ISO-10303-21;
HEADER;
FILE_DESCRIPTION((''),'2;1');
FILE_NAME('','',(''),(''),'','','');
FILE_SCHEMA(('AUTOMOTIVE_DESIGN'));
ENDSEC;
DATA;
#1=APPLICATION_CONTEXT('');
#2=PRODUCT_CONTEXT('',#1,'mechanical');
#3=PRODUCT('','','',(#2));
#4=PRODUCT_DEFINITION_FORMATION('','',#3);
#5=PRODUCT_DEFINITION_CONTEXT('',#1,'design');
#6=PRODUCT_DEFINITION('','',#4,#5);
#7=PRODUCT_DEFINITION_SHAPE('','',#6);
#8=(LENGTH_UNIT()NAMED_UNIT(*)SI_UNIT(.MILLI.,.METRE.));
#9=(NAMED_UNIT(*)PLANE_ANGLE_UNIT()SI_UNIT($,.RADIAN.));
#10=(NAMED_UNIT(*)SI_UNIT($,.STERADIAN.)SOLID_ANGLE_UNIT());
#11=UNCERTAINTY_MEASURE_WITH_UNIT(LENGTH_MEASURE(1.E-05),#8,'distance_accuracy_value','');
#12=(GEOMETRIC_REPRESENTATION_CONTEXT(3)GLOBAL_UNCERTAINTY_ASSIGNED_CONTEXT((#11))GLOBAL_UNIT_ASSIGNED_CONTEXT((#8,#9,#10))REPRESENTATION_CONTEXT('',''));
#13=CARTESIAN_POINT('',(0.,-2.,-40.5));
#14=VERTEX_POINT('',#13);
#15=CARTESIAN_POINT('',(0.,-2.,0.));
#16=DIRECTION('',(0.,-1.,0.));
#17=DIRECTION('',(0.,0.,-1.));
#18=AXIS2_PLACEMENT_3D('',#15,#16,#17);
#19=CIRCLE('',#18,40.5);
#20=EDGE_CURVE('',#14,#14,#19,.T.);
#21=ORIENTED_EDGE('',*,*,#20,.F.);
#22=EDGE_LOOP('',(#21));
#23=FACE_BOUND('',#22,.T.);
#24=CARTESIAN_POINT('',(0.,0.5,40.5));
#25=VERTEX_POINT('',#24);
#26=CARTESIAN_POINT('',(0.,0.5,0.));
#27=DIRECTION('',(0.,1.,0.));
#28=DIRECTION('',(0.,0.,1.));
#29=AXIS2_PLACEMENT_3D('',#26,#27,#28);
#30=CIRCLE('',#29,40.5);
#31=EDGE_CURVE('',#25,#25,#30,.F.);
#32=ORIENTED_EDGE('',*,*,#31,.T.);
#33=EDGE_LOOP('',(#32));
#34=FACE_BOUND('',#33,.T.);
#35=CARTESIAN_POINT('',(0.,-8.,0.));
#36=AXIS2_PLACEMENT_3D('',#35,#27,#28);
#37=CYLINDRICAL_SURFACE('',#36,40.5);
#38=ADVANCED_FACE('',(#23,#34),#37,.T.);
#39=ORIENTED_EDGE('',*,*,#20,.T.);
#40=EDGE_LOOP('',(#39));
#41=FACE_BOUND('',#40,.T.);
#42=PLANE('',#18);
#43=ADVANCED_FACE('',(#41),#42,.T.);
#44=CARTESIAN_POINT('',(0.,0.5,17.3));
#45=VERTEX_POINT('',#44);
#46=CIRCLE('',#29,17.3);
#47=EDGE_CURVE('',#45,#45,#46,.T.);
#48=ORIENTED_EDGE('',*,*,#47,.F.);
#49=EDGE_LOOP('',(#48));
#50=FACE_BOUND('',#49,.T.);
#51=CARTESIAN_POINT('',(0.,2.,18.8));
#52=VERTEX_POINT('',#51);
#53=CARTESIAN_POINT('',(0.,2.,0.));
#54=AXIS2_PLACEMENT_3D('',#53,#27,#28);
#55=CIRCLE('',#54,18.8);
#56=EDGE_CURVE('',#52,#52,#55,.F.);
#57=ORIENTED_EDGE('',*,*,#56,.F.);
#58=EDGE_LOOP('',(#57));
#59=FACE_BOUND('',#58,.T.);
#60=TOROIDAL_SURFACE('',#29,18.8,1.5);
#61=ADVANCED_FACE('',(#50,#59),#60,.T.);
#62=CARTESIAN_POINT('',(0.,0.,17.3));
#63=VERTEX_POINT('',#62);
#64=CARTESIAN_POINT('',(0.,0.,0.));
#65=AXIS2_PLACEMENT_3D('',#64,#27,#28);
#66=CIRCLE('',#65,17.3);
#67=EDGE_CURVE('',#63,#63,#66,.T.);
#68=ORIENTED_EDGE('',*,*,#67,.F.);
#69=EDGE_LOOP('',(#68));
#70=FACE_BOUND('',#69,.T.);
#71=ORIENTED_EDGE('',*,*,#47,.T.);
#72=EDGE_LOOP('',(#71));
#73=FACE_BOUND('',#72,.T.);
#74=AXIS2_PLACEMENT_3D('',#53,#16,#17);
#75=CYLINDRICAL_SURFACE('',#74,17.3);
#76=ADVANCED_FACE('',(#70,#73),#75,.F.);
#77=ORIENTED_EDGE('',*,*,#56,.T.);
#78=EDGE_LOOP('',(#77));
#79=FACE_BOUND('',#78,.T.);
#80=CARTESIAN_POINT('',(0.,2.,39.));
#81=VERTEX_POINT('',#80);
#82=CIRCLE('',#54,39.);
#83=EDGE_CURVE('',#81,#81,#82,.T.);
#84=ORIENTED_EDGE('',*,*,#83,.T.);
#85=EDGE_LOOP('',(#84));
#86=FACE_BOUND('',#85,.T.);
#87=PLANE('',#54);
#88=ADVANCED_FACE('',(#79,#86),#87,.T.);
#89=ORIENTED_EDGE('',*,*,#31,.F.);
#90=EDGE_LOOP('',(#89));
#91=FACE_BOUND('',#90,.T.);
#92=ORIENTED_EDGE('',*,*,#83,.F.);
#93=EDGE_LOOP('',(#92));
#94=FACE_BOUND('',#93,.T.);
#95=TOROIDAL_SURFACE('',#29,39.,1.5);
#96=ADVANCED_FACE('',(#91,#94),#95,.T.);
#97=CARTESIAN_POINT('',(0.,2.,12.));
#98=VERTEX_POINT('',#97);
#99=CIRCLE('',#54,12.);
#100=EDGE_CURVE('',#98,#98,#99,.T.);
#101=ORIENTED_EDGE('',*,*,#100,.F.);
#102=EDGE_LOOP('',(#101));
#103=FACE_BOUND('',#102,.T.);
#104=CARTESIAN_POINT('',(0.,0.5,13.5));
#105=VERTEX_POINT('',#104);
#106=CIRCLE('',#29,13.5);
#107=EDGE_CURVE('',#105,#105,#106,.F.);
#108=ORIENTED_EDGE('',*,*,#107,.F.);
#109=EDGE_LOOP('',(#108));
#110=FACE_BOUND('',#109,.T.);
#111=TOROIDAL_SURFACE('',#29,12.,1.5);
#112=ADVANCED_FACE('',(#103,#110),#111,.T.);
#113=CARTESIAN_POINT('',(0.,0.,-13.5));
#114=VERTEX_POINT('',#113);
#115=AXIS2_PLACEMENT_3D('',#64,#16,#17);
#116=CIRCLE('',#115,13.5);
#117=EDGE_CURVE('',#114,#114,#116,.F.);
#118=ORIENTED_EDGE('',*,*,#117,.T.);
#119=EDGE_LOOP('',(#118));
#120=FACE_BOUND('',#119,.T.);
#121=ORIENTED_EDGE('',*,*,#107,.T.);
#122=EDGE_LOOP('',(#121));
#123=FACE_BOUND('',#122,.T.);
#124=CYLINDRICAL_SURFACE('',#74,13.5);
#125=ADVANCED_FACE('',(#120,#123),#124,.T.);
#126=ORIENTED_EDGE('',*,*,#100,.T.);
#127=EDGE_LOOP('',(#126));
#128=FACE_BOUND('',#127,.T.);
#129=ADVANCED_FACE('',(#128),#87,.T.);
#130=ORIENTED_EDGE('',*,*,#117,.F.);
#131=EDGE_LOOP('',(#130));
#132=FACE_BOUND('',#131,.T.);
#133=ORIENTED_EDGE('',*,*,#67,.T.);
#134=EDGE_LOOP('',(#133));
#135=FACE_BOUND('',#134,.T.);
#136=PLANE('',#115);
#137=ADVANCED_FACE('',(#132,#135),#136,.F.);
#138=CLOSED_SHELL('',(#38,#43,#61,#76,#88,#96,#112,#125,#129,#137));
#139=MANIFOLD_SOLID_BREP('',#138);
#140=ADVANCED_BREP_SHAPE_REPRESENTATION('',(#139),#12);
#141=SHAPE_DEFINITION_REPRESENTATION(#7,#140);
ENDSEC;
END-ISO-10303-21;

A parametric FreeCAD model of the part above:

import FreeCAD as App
import Part
import Sketcher


def edges_at(feature, points):
    """Names of the edges that pass closest to the given points."""
    edges = feature.Shape.Edges
    near = lambda p: min(range(len(edges)), key=lambda i: edges[i].distToShape(Part.Vertex(*p))[0])
    return sorted({f"Edge{near(p) + 1}" for p in points})

doc = App.newDocument("Part")
params = doc.addObject("Spreadsheet::Sheet", "Params")
for row, (alias, value) in enumerate([
    ("sketch1_diameter", "90 mm"),
    ("sketch1_diameter2", "27 mm"),
    ("sketch1_diameter3", "34.6 mm"),
    ("pad1_length", "2 mm"),
    ("sketch2_diameter", "90 mm"),
    ("pad2_length", "2 mm"),
    ("sketch3_diameter", "81 mm"),
    ("pocket1_length", "10 mm"),
    ("fillet_radius", "1.5 mm"),
], start=1):
    params.set(f"A{row}", alias)
    params.set(f"B{row}", "=" + value)
    params.setAlias(f"B{row}", alias)

body = doc.addObject("PartDesign::Body", "Body")
body.AllowCompound = True

# Sketch on XZ plane
sketch1 = doc.addObject("Sketcher::SketchObject", "Sketch")
body.addObject(sketch1)
sketch1.AttachmentSupport = (doc.XZ_Plane, [""])
sketch1.MapMode = "FlatFace"
sketch1.addGeometry(Part.Circle(App.Vector(0, 0, 0), App.Vector(0, 0, 1), 45), False)
sketch1.addGeometry(Part.Circle(App.Vector(0, 0, 0), App.Vector(0, 0, 1), 17), False)
sketch1.addGeometry(Part.Circle(App.Vector(0, 0, 0), App.Vector(0, 0, 1), 14), False)
sketch1.addConstraint(Sketcher.Constraint("Coincident", 0, 3, -1, 1))
sketch1.addConstraint(Sketcher.Constraint("Coincident", 1, 3, -1, 1))
sketch1.addConstraint(Sketcher.Constraint("Coincident", 2, 3, -1, 1))
sketch1.addConstraint(Sketcher.Constraint("Diameter", 0, 90.0))
sketch1.addConstraint(Sketcher.Constraint("Diameter", 2, 27.0))
sketch1.addConstraint(Sketcher.Constraint("Diameter", 1, 34.6))
sketch1.setExpression("Constraints[3]", "Params.sketch1_diameter")
sketch1.setExpression("Constraints[4]", "Params.sketch1_diameter2")
sketch1.setExpression("Constraints[5]", "Params.sketch1_diameter3")
pad1 = doc.addObject("PartDesign::Pad", "Pad")
body.addObject(pad1)
pad1.Profile = sketch1
pad1.setExpression("Length", "Params.pad1_length")
pad1.Reversed = True

# Sketch on XZ plane
sketch2 = doc.addObject("Sketcher::SketchObject", "Sketch001")
body.addObject(sketch2)
sketch2.AttachmentSupport = (doc.XZ_Plane, [""])
sketch2.MapMode = "FlatFace"
sketch2.addGeometry(Part.Circle(App.Vector(0, 0, 0), App.Vector(0, 0, 1), 45), False)
sketch2.addConstraint(Sketcher.Constraint("Coincident", 0, 3, -1, 1))
sketch2.addConstraint(Sketcher.Constraint("Diameter", 0, 90.0))
sketch2.setExpression("Constraints[1]", "Params.sketch2_diameter")
pad2 = doc.addObject("PartDesign::Pad", "Pad001")
body.addObject(pad2)
pad2.Profile = sketch2
pad2.setExpression("Length", "Params.pad2_length")

# Sketch on XZ plane
sketch3 = doc.addObject("Sketcher::SketchObject", "Sketch002")
body.addObject(sketch3)
sketch3.AttachmentSupport = (doc.XZ_Plane, [""])
sketch3.MapMode = "FlatFace"
sketch3.AttachmentOffset = App.Placement(App.Vector(0, 0, -2), App.Rotation())
sketch3.addGeometry(Part.Circle(App.Vector(0, 0, 0), App.Vector(0, 0, 1), 56), False)
sketch3.addGeometry(Part.Circle(App.Vector(0, 0, 0), App.Vector(0, 0, 1), 40), False)
sketch3.addConstraint(Sketcher.Constraint("Coincident", 0, 3, -1, 1))
sketch3.addConstraint(Sketcher.Constraint("Coincident", 1, 3, -1, 1))
sketch3.addConstraint(Sketcher.Constraint("Diameter", 1, 81.0))
sketch3.addConstraint(Sketcher.Constraint("Diameter", 0, 112.96927))
sketch3.setExpression("Constraints[2]", "Params.sketch3_diameter")
pocket1 = doc.addObject("PartDesign::Pocket", "Pocket")
body.addObject(pocket1)
pocket1.Profile = sketch3
pocket1.setExpression("Length", "Params.pocket1_length")
pocket1.Reversed = True
doc.recompute()

fillet = doc.addObject("PartDesign::Fillet", "Fillet")
body.addObject(fillet)
fillet.Base = (pocket1, edges_at(pocket1, [(-13.5, 2, 0), (-40.5, 2, 0), (-17.3, 2, 0)]))
fillet.setExpression("Radius", "Params.fillet_radius")

doc.recompute()
